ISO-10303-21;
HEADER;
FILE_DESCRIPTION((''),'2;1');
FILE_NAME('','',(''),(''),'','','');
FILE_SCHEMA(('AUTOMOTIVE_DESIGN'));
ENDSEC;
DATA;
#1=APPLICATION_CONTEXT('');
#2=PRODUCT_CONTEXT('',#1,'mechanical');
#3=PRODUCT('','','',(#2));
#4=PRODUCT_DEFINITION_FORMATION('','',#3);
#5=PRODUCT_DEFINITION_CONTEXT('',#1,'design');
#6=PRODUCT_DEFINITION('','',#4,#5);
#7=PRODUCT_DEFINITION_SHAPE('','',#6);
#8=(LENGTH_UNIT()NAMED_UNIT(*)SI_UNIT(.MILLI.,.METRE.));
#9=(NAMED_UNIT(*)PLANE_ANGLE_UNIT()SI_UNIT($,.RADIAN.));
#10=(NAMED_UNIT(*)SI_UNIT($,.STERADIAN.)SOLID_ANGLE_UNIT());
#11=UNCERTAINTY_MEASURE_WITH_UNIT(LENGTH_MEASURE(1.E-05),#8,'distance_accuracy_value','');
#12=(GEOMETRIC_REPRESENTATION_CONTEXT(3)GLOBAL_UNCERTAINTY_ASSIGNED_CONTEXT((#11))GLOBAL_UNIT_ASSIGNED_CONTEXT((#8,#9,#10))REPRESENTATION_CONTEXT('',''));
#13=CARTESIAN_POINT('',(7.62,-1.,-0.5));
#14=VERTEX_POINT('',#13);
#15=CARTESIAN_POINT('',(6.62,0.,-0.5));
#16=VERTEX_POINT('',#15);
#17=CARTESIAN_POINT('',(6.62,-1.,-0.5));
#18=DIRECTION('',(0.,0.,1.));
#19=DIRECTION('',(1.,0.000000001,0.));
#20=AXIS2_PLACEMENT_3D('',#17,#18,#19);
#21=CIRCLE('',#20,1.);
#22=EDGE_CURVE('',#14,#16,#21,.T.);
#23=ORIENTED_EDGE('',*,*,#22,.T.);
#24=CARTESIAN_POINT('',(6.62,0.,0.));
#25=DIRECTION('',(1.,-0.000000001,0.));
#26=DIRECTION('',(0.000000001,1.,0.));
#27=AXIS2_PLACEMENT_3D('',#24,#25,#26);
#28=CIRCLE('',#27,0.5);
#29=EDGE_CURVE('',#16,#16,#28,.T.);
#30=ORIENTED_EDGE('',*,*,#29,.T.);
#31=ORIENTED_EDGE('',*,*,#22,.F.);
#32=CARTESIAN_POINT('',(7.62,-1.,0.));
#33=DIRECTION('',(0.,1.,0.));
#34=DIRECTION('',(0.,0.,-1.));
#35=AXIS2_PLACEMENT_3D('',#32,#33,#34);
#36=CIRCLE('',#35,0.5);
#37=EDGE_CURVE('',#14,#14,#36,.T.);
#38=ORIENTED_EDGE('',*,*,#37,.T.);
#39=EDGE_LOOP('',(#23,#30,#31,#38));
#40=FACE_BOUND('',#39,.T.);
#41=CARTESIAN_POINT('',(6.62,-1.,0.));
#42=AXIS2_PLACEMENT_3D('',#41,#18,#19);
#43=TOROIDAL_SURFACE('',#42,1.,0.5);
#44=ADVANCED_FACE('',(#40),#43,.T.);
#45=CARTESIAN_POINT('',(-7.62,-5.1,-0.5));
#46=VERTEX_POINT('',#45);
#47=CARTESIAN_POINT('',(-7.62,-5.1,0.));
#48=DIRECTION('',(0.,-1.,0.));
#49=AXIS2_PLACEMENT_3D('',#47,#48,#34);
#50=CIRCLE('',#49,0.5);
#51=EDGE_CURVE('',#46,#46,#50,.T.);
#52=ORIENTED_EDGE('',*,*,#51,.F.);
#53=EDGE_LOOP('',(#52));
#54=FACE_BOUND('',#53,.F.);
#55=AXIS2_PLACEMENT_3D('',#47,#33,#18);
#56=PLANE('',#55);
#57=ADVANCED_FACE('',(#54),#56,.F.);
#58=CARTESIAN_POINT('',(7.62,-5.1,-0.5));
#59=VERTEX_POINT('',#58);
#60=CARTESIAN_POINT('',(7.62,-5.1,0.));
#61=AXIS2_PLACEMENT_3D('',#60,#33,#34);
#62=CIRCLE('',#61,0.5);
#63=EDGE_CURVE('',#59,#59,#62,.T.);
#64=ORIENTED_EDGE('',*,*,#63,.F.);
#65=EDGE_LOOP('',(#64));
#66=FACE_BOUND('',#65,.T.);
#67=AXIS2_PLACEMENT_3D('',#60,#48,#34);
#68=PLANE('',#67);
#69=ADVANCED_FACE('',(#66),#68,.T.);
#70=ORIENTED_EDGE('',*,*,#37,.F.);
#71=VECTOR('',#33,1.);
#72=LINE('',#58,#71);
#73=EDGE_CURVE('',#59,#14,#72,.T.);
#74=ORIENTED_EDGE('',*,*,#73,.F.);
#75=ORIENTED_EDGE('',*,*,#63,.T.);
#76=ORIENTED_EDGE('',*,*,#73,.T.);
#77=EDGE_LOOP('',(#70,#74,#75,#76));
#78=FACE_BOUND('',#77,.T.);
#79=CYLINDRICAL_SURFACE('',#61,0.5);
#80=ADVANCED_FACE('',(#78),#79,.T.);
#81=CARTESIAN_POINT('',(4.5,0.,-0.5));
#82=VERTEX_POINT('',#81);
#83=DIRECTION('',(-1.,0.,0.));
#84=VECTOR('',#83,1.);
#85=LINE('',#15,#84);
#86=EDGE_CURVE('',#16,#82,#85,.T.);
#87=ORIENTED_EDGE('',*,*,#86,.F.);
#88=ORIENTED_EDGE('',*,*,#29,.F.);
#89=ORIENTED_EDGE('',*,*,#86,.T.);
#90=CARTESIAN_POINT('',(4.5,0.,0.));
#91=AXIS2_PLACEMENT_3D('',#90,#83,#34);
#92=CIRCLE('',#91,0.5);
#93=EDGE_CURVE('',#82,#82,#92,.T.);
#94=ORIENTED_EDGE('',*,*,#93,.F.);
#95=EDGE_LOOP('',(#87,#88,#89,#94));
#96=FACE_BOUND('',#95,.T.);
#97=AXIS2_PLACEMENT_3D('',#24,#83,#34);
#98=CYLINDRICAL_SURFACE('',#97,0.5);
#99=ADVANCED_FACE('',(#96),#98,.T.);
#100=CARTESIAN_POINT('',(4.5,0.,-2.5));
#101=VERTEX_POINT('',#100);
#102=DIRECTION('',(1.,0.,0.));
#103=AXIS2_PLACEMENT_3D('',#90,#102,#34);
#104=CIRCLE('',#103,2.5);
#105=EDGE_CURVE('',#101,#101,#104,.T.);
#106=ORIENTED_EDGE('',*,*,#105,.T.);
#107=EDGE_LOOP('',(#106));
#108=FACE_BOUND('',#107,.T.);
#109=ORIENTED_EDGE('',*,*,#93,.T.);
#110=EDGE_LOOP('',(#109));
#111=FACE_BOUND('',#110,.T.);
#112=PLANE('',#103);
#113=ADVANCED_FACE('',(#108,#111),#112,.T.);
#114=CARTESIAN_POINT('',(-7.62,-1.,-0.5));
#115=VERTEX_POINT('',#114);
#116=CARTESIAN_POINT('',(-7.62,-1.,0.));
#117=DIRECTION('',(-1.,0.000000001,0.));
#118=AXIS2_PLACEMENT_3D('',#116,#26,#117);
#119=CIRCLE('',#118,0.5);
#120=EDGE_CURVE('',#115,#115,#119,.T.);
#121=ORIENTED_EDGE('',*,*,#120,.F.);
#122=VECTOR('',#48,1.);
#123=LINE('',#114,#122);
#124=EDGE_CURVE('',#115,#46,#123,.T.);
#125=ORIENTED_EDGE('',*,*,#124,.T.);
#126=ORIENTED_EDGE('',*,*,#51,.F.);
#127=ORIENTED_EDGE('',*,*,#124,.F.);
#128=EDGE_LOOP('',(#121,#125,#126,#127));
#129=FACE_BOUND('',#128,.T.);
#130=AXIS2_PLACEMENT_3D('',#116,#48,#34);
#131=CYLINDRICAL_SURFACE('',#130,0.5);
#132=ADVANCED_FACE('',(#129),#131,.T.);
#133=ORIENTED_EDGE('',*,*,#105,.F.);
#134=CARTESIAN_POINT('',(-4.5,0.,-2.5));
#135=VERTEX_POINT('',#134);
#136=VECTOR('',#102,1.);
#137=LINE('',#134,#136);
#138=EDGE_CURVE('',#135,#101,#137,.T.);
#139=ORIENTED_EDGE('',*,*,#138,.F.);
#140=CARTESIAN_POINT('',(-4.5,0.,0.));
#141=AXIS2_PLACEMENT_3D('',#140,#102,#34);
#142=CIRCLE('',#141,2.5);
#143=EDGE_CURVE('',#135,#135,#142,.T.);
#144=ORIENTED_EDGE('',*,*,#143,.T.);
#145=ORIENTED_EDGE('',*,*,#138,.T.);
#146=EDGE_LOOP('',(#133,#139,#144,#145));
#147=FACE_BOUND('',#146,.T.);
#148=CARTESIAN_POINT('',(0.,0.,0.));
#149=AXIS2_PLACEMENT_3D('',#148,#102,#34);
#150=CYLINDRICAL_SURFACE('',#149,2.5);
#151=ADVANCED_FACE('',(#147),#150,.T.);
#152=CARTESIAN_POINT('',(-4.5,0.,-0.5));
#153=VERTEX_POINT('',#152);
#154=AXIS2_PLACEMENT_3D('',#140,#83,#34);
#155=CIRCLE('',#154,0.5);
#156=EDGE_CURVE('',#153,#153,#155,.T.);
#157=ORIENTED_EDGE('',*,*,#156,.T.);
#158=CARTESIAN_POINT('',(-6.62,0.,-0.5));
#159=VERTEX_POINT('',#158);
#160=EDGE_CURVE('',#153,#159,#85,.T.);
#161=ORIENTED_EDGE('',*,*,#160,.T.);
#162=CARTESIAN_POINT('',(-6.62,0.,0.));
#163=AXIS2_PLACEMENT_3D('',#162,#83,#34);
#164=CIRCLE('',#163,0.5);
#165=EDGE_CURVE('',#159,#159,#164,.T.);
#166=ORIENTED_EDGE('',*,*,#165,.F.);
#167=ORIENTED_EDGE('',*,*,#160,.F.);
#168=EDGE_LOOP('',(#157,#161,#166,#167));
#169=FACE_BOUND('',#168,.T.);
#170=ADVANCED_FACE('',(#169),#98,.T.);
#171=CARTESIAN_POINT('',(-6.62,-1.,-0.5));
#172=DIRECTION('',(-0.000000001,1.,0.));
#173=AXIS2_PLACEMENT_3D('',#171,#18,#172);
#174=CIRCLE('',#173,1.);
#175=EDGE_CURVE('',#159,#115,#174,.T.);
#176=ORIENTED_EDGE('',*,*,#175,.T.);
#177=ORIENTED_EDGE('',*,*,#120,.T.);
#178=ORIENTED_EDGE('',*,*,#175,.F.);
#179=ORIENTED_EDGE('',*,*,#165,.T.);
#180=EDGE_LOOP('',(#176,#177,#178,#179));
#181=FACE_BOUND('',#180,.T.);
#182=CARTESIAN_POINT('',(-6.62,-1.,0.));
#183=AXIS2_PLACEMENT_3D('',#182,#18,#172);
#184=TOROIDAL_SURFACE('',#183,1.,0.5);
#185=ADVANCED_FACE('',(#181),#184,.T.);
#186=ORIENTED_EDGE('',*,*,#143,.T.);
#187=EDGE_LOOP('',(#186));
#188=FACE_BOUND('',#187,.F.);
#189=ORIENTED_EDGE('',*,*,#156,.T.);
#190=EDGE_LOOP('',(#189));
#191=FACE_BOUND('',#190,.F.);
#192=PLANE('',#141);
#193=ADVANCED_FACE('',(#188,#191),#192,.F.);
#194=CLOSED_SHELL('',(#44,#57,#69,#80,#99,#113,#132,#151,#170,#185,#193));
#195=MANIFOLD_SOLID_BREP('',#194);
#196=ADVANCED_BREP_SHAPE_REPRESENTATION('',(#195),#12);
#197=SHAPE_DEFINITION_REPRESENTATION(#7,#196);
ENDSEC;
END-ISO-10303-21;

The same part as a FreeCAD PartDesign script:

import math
import FreeCAD as App
import Part
import Sketcher

V = App.Vector

doc = App.newDocument("Part")
params = doc.addObject("Spreadsheet::Sheet", "Params")
for row, (alias, value) in enumerate([
    ("sketch1_diameter", "5 mm"),
    ("pad1_length", "4.5 mm"),
    ("pad1_length2", "4.5 mm"),
    ("sketch2_diameter", "1 mm"),
    ("sketch3_radius", "1 mm"),
    ("sketch3_height", "4.1 mm"),
    ("sketch3_width", "13.24 mm"),
], start=1):
    params.set(f"A{row}", alias)
    params.set(f"B{row}", "=" + value)
    params.setAlias(f"B{row}", alias)

body = doc.addObject("PartDesign::Body", "Body")

# Sketch on YZ plane
sketch1 = doc.addObject("Sketcher::SketchObject", "Sketch")
body.addObject(sketch1)
sketch1.AttachmentSupport = (doc.YZ_Plane, [""])
sketch1.MapMode = "FlatFace"
sketch1.addGeometry(Part.Circle(V(0, 0, 0), V(0, 0, 1), 2.5), False)
sketch1.addConstraint([
    Sketcher.Constraint("Coincident", 0, 3, -1, 1),
    Sketcher.Constraint("Diameter", 0, 5.0),
])
sketch1.setExpression("Constraints[1]", "Params.sketch1_diameter")
pad1 = doc.addObject("PartDesign::Pad", "Pad")
body.addObject(pad1)
pad1.Profile = sketch1
pad1.Type = "TwoLengths"
pad1.setExpression("Length", "Params.pad1_length")
pad1.setExpression("Length2", "Params.pad1_length2")

# Sketch on YZ plane
sketch2 = doc.addObject("Sketcher::SketchObject", "Sketch001")
body.addObject(sketch2)
sketch2.AttachmentSupport = (doc.YZ_Plane, [""])
sketch2.MapMode = "FlatFace"
sketch2.AttachmentOffset = App.Placement(V(0, 0, 4.5), App.Rotation())
sketch2.addGeometry(Part.Circle(V(0, 0, 0), V(0, 0, 1), 0.5), False)
sketch2.addConstraint([
    Sketcher.Constraint("Coincident", 0, 3, -1, 1),
    Sketcher.Constraint("Diameter", 0, 1.0),
])
sketch2.setExpression("Constraints[1]", "Params.sketch2_diameter")

# Sketch on XY plane
sketch3 = doc.addObject("Sketcher::SketchObject", "Sketch002")
body.addObject(sketch3)
sketch3.AttachmentSupport = (doc.XY_Plane, [""])
sketch3.MapMode = "FlatFace"
sketch3.addGeometry([
    Part.LineSegment(V(7.62, -5.1, 0), V(7.62, -1, 0)),  # 0
    Part.ArcOfCircle(Part.Circle(V(6.62, -1, 0), V(0, 0, 1), 1), math.radians(0), math.radians(90)),  # 1
    Part.LineSegment(V(6.62, 0, 0), V(-6.62, 0, 0)),  # 2
    Part.ArcOfCircle(Part.Circle(V(-6.62, -1, 0), V(0, 0, 1), 1), math.radians(90), math.radians(180)),  # 3
    Part.LineSegment(V(-7.62, -1, 0), V(-7.62, -5.1, 0)),  # 4
], False)
sketch3.addConstraint([
    Sketcher.Constraint("Tangent", 0, 2, 1, 1),
    Sketcher.Constraint("Tangent", 1, 2, 2, 1),
    Sketcher.Constraint("Tangent", 2, 2, 3, 1),
    Sketcher.Constraint("Tangent", 3, 2, 4, 1),
    Sketcher.Constraint("Vertical", 0),
    Sketcher.Constraint("Horizontal", 2),
    Sketcher.Constraint("Vertical", 4),
    Sketcher.Constraint("Equal", 1, 3),
    Sketcher.Constraint("Symmetric", 1, 2, 2, 2, -1, 1),
    Sketcher.Constraint("Horizontal", 0, 1, 4, 2),
    Sketcher.Constraint("Radius", 1, 1.0),
    Sketcher.Constraint("DistanceY", 0, 1, 0, 2, 4.1),
    Sketcher.Constraint("DistanceX", 2, 2, 2, 1, 13.24),
])
sketch3.setExpression("Constraints[10]", "Params.sketch3_radius")
sketch3.setExpression("Constraints[11]", "Params.sketch3_height")
sketch3.setExpression("Constraints[12]", "Params.sketch3_width")
doc.recompute()

additivepipe = doc.addObject("PartDesign::AdditivePipe", "AdditivePipe")
body.addObject(additivepipe)
additivepipe.Profile = sketch2
additivepipe.Spine = (sketch3, ["Edge1", "Edge2", "Edge3", "Edge4", "Edge5"])

doc.recompute()
